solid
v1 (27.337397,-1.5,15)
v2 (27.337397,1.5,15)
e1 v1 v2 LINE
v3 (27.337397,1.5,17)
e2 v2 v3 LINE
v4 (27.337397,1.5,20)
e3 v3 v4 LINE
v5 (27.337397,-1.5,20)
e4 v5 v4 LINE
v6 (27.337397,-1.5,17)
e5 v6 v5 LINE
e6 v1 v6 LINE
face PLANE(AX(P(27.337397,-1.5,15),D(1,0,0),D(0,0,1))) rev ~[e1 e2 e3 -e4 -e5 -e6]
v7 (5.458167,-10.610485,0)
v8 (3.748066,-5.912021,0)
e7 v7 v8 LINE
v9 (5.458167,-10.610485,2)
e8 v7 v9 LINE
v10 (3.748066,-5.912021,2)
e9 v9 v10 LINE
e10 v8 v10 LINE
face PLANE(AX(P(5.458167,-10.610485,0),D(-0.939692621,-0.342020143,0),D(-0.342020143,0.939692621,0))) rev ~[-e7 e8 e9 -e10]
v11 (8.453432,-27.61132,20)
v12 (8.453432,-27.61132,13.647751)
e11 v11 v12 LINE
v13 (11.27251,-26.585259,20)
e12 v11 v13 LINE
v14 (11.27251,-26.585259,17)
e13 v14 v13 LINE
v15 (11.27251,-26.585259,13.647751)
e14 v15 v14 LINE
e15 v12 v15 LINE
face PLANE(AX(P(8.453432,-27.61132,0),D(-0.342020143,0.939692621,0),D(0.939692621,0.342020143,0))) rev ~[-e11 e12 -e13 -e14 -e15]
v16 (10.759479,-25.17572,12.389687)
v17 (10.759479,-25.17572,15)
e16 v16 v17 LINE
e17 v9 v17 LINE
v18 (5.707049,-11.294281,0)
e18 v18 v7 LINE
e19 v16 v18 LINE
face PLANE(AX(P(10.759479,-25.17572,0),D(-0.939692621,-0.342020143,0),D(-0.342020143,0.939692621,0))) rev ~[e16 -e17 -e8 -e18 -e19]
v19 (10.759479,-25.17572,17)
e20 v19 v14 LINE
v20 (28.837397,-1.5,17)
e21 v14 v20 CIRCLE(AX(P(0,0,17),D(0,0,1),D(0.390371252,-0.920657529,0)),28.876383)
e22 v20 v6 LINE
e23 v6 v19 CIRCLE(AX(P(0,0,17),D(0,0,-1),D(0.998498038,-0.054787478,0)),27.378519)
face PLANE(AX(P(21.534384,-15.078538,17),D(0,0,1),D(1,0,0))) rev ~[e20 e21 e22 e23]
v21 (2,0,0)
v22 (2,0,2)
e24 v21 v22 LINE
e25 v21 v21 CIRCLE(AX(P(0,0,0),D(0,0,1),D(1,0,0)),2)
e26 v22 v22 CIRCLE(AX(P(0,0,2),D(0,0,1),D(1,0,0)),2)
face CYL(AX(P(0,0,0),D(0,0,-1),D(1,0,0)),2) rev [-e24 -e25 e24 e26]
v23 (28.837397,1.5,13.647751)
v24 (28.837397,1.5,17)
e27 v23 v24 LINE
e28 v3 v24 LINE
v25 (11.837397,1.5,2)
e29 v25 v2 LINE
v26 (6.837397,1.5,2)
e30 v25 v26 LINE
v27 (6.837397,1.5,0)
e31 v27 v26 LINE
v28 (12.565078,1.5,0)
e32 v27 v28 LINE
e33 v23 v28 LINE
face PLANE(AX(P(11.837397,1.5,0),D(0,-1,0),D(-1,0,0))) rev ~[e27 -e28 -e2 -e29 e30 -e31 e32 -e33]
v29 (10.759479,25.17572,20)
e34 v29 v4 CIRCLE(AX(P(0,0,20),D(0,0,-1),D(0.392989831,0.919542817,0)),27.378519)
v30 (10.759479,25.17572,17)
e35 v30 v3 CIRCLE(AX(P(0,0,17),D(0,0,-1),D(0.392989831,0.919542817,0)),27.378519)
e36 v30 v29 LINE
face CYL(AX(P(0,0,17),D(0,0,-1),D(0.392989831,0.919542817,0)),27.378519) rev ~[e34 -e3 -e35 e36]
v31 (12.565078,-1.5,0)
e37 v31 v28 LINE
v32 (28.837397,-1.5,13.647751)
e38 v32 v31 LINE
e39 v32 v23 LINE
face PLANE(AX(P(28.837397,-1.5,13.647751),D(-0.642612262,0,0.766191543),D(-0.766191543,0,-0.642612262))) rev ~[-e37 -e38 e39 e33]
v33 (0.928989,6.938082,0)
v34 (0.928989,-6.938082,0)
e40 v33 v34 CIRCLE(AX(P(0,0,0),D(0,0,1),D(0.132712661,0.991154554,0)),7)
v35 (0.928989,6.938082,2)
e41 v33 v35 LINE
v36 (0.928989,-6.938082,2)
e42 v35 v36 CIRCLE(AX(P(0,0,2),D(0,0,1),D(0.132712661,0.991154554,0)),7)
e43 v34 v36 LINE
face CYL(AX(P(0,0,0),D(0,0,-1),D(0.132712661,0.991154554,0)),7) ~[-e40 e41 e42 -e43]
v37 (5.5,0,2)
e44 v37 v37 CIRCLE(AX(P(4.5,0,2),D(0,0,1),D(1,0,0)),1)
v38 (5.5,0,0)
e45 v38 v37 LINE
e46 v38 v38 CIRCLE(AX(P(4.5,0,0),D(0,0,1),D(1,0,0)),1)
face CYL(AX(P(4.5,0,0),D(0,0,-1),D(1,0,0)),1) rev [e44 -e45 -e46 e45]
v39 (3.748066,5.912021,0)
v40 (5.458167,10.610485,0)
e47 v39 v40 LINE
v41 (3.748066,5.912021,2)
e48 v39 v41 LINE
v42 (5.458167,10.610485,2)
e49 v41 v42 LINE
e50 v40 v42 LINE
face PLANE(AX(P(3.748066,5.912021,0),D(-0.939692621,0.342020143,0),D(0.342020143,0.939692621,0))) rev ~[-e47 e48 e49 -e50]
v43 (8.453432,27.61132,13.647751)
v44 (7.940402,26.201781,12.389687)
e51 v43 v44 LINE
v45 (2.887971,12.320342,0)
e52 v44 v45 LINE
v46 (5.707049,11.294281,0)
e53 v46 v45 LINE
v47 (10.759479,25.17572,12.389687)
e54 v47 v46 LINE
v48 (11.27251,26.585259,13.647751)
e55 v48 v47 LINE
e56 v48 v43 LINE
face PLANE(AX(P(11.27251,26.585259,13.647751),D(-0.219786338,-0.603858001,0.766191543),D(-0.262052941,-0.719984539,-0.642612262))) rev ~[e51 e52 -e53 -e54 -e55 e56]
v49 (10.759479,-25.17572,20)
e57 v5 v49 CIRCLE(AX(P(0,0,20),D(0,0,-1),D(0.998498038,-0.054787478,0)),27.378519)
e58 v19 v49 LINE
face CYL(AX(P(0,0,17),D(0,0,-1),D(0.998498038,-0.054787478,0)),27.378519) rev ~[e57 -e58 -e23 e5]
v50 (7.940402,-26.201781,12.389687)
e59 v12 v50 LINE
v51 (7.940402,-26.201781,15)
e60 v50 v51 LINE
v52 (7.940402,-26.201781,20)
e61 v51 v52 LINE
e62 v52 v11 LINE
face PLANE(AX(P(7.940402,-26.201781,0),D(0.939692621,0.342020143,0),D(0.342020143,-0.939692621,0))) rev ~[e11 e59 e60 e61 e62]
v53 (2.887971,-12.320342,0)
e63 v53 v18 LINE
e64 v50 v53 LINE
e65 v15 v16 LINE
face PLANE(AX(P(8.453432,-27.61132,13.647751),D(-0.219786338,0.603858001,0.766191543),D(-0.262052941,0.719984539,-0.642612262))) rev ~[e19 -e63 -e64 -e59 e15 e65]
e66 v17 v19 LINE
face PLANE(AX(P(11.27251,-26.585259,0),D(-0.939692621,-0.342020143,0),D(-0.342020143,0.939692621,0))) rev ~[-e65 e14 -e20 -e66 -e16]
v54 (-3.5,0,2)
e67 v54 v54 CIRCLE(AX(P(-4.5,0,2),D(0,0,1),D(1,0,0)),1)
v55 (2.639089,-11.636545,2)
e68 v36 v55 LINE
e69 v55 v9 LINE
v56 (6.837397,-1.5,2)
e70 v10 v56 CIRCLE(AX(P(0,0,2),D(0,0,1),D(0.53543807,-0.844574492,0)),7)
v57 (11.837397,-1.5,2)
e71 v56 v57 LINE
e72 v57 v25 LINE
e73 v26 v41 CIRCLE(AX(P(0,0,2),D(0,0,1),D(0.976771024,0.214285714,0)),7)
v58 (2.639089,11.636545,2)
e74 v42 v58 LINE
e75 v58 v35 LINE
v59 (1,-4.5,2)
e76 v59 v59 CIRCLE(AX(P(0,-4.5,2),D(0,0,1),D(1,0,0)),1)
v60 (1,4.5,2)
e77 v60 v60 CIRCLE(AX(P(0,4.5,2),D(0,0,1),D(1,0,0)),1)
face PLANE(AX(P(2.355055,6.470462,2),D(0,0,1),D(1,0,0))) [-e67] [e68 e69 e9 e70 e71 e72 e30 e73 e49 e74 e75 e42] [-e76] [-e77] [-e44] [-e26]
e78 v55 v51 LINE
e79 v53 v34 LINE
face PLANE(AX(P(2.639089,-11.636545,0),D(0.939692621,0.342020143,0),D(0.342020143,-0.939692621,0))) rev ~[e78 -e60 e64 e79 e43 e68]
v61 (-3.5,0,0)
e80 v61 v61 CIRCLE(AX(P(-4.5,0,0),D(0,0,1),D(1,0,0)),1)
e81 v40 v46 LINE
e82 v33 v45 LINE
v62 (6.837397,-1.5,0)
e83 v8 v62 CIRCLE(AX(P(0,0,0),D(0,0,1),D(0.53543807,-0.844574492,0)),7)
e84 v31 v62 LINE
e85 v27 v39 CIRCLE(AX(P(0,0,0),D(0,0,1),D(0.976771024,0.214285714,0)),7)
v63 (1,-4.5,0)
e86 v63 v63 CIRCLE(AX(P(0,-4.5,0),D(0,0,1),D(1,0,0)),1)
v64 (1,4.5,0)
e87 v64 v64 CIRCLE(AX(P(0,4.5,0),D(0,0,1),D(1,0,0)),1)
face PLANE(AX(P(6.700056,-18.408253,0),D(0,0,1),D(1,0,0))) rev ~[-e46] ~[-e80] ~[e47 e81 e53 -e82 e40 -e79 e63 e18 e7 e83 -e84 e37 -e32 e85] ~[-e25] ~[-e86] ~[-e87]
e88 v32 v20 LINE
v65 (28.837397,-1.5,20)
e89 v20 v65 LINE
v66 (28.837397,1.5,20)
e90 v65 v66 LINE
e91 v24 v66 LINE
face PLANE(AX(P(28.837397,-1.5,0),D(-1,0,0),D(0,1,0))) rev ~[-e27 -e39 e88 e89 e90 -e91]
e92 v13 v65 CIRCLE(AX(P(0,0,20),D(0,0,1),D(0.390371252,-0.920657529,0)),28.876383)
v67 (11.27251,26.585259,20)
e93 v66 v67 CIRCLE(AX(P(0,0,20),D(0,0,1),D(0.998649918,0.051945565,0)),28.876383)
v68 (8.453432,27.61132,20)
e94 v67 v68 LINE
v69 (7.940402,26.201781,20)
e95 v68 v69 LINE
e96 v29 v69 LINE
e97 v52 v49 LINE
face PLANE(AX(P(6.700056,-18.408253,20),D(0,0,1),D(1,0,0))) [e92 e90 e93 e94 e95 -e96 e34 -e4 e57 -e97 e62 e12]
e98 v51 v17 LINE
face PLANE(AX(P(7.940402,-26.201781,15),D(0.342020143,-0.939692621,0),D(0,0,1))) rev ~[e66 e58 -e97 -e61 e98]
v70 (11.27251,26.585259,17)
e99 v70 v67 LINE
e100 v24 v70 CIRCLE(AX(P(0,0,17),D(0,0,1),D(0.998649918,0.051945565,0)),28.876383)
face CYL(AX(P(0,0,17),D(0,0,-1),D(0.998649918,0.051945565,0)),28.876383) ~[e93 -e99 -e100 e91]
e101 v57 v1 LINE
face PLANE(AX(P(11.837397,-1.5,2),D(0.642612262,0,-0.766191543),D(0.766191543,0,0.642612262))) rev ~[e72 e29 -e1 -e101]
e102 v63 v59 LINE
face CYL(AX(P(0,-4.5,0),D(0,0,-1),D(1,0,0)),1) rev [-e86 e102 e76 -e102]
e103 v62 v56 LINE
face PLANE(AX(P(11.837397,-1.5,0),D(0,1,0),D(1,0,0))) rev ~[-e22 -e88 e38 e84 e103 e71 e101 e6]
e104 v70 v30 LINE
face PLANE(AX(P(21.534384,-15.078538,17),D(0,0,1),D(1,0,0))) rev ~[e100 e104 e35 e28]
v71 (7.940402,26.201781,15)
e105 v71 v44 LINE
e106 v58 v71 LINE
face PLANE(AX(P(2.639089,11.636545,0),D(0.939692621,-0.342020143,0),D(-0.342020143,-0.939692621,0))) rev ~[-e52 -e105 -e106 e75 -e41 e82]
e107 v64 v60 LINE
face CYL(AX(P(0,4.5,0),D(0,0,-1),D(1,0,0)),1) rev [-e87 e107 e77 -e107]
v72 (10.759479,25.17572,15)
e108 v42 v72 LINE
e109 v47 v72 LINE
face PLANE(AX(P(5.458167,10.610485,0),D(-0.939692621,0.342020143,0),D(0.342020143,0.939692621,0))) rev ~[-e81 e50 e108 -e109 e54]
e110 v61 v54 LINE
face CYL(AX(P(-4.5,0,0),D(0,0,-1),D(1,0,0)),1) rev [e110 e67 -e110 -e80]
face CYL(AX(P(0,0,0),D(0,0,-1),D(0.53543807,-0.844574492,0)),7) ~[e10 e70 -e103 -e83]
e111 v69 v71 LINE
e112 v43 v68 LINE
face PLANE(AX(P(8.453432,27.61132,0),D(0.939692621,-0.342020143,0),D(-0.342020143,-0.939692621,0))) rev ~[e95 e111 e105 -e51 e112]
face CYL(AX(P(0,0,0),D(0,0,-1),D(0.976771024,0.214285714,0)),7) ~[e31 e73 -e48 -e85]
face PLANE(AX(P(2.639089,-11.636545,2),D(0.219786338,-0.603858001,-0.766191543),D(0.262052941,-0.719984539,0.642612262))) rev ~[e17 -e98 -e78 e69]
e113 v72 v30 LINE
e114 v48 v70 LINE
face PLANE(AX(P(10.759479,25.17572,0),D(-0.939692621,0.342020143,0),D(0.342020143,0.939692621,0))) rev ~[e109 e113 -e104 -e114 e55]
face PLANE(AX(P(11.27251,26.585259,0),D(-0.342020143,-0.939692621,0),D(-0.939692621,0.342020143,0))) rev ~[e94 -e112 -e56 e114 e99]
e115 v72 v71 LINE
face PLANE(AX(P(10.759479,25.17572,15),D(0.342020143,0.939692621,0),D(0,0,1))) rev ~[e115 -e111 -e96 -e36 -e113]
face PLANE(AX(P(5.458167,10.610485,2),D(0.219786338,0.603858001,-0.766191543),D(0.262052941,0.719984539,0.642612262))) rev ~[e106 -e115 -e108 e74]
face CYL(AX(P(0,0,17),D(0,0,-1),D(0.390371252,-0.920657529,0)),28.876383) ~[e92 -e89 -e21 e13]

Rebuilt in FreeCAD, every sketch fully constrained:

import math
import FreeCAD as App
import Part
import Sketcher
from FreeCAD import Vector
Q = App.Units.Quantity

doc = App.newDocument("Part")
params = doc.addObject("Spreadsheet::Sheet", "Params")
for row, (alias, value) in enumerate([
    ("sketch1_diameter", "2 mm"),
    ("sketch1_diameter2", "4 mm"),
    ("sketch1_radius", "7 mm"),
    ("sketch1_width", "5 mm"),
    ("sketch1_height", "3 mm"),
    ("pad1_length", "2 mm"),
    ("sketch2_height", "3 mm"),
    ("sketch2_length", "3 mm"),
    ("sketch2_length2", "1.5 mm"),
    ("pad2_length", "3 mm"),
    ("sketch3_width", "17 mm"),
    ("sketch3_height", "3 mm"),
    ("sketch3_length", "3 mm"),
    ("sketch3_length2", "15.5 mm"),
    ("sketch3_length3", "1.5 mm"),
    ("pad3_length", "20 mm"),
    ("sketch4_height", "5 mm"),
    ("sketch4_height2", "18 mm"),
    ("sketch4_width", "15.5 mm"),
    ("pocket1_length", "3 mm"),
    ("sketch5_height", "18 mm"),
    ("sketch5_height2", "5 mm"),
    ("sketch5_width", "15.5 mm"),
    ("pocket2_length", "3 mm"),
    ("sketch6_height", "18 mm"),
    ("sketch6_height2", "5 mm"),
    ("sketch6_width", "15.5 mm"),
    ("pocket3_length", "3 mm"),
], start=1):
    params.set(f"A{row}", alias)
    params.set(f"B{row}", "=" + value)
    params.setAlias(f"B{row}", alias)

body = doc.addObject("PartDesign::Body", "Body")

sketch1 = body.newObject("Sketcher::SketchObject", "Sketch")
sketch1.AttachmentSupport = (doc.getObject("XY_Plane"), [""])
sketch1.MapMode = "FlatFace"
sketch1.addGeometry(Part.ArcOfCircle(Part.Circle(Vector(0, 0, 0), Vector(0, 0, 1), 7), math.radians(82.373625), math.radians(277.626375)), False)
sketch1.addGeometry(Part.LineSegment(Vector(0.928989, -6.938082, 0), Vector(2.639089, -11.636545, 0)), False)
sketch1.addGeometry(Part.LineSegment(Vector(2.639089, -11.636545, 0), Vector(5.458167, -10.610485, 0)), False)
sketch1.addGeometry(Part.LineSegment(Vector(5.458167, -10.610485, 0), Vector(3.748066, -5.912021, 0)), False)
sketch1.addGeometry(Part.ArcOfCircle(Part.Circle(Vector(0, 0, 0), Vector(0, 0, 1), 7), math.radians(-57.626375), math.radians(-12.373625)), False)
sketch1.addGeometry(Part.LineSegment(Vector(6.837397, -1.5, 0), Vector(11.837397, -1.5, 0)), False)
sketch1.addGeometry(Part.LineSegment(Vector(11.837397, -1.5, 0), Vector(11.837397, 1.5, 0)), False)
sketch1.addGeometry(Part.LineSegment(Vector(11.837397, 1.5, 0), Vector(6.837397, 1.5, 0)), False)
sketch1.addGeometry(Part.ArcOfCircle(Part.Circle(Vector(0, 0, 0), Vector(0, 0, 1), 7), math.radians(12.373625), math.radians(57.626375)), False)
sketch1.addGeometry(Part.LineSegment(Vector(3.748066, 5.912021, 0), Vector(5.458167, 10.610485, 0)), False)
sketch1.addGeometry(Part.LineSegment(Vector(5.458167, 10.610485, 0), Vector(2.639089, 11.636545, 0)), False)
sketch1.addGeometry(Part.LineSegment(Vector(2.639089, 11.636545, 0), Vector(0.928989, 6.938082, 0)), False)
sketch1.addGeometry(Part.Circle(Vector(-4.5, 0, 0), Vector(0, 0, 1), 1), False)
sketch1.addGeometry(Part.Circle(Vector(0, -4.5, 0), Vector(0, 0, 1), 1), False)
sketch1.addGeometry(Part.Circle(Vector(4.5, 0, 0), Vector(0, 0, 1), 1), False)
sketch1.addGeometry(Part.Circle(Vector(0, 0, 0), Vector(0, 0, 1), 2), False)
sketch1.addGeometry(Part.Circle(Vector(0, 4.5, 0), Vector(0, 0, 1), 1), False)
sketch1.addConstraint(Sketcher.Constraint("Coincident", 0, 2, 1, 1))
sketch1.addConstraint(Sketcher.Constraint("Coincident", 1, 2, 2, 1))
sketch1.addConstraint(Sketcher.Constraint("Coincident", 2, 2, 3, 1))
sketch1.addConstraint(Sketcher.Constraint("Coincident", 3, 2, 4, 1))
sketch1.addConstraint(Sketcher.Constraint("Coincident", 4, 2, 5, 1))
sketch1.addConstraint(Sketcher.Constraint("Coincident", 5, 2, 6, 1))
sketch1.addConstraint(Sketcher.Constraint("Coincident", 6, 2, 7, 1))
sketch1.addConstraint(Sketcher.Constraint("Coincident", 7, 2, 8, 1))
sketch1.addConstraint(Sketcher.Constraint("Coincident", 8, 2, 9, 1))
sketch1.addConstraint(Sketcher.Constraint("Coincident", 9, 2, 10, 1))
sketch1.addConstraint(Sketcher.Constraint("Coincident", 10, 2, 11, 1))
sketch1.addConstraint(Sketcher.Constraint("Coincident", 11, 2, 0, 1))
sketch1.addConstraint(Sketcher.Constraint("Horizontal", 5))
sketch1.addConstraint(Sketcher.Constraint("Vertical", 6))
sketch1.addConstraint(Sketcher.Constraint("Horizontal", 7))
sketch1.addConstraint(Sketcher.Constraint("Coincident", 0, 3, -1, 1))
sketch1.addConstraint(Sketcher.Constraint("Coincident", 4, 3, -1, 1))
sketch1.addConstraint(Sketcher.Constraint("Coincident", 8, 3, -1, 1))
sketch1.addConstraint(Sketcher.Constraint("Coincident", 15, 3, -1, 1))
sketch1.addConstraint(Sketcher.Constraint("Equal", 0, 4))
sketch1.addConstraint(Sketcher.Constraint("Equal", 4, 8))
sketch1.addConstraint(Sketcher.Constraint("Equal", 12, 13))
sketch1.addConstraint(Sketcher.Constraint("Equal", 13, 14))
sketch1.addConstraint(Sketcher.Constraint("Equal", 14, 16))
sketch1.addConstraint(Sketcher.Constraint("Symmetric", 12, 3, 14, 3, -1, 1))
sketch1.addConstraint(Sketcher.Constraint("Symmetric", 13, 3, 16, 3, -1, 1))
sketch1.addConstraint(Sketcher.Constraint("Symmetric", 2, 2, 9, 2, -1))
sketch1.addConstraint(Sketcher.Constraint("Symmetric", 1, 2, 10, 2, -1))
sketch1.addConstraint(Sketcher.Constraint("PointOnObject", 12, 3, -1))
sketch1.addConstraint(Sketcher.Constraint("PointOnObject", 13, 3, -2))
sketch1.addConstraint(Sketcher.Constraint("Perpendicular", 1, 2))
sketch1.addConstraint(Sketcher.Constraint("Perpendicular", 2, 3))
sketch1.addConstraint(Sketcher.Constraint("Perpendicular", 9, 10))
sketch1.addConstraint(Sketcher.Constraint("Perpendicular", 10, 11))
sketch1.addConstraint(Sketcher.Constraint("Vertical", 4, 2, 7, 2))
sketch1.addConstraint(Sketcher.Constraint("Equal", 1, 3))
sketch1.addConstraint(Sketcher.Constraint("Diameter", 12, 2.0))
sketch1.addConstraint(Sketcher.Constraint("Diameter", 15, 4.0))
sketch1.addConstraint(Sketcher.Constraint("Radius", 0, 7.0))
sketch1.addConstraint(Sketcher.Constraint("DistanceX", 5, 1, 5, 2, 5.0))
sketch1.addConstraint(Sketcher.Constraint("DistanceY", 6, 1, 6, 2, 3.0))
sketch1.addConstraint(Sketcher.Constraint("Angle", 1, Q("-70 deg")))
sketch1.addConstraint(Sketcher.Constraint("Distance", 1, 5.0))
sketch1.addConstraint(Sketcher.Constraint("Distance", 2, 3.0))
sketch1.addConstraint(Sketcher.Constraint("DistanceX", 12, 3, 14, 3, 9.0))
sketch1.addConstraint(Sketcher.Constraint("DistanceY", 13, 3, -1, 1, 4.5))
sketch1.setExpression("Constraints[36]", "Params.sketch1_diameter")
sketch1.setExpression("Constraints[37]", "Params.sketch1_diameter2")
sketch1.setExpression("Constraints[38]", "Params.sketch1_radius")
sketch1.setExpression("Constraints[39]", "Params.sketch1_width")
sketch1.setExpression("Constraints[40]", "Params.sketch1_height")
pad1 = body.newObject("PartDesign::Pad", "Pad")
pad1.Profile = sketch1
pad1.setExpression("Length", "Params.pad1_length")
body2 = doc.addObject("PartDesign::Body", "Body001")

sketch2 = body2.newObject("Sketcher::SketchObject", "Sketch001")
sketch2.AttachmentSupport = (doc.getObject("XY_Plane001"), [""])
sketch2.MapMode = "FlatFace"
sketch2.AttachmentOffset = App.Placement(Vector(0, 0, 17), App.Rotation())
sketch2.addGeometry(Part.ArcOfCircle(Part.Circle(Vector(0, 0, 0), Vector(0, 0, 1), 27.378519), math.radians(-66.859336), math.radians(-3.140664)), False)
sketch2.addGeometry(Part.ArcOfCircle(Part.Circle(Vector(0, 0, 0), Vector(0, 0, 1), 27.378519), math.radians(-73.140664), math.radians(-66.859336)), False)
sketch2.addGeometry(Part.LineSegment(Vector(7.940402, -26.201781, 0), Vector(8.453432, -27.61132, 0)), False)
sketch2.addGeometry(Part.LineSegment(Vector(8.453432, -27.61132, 0), Vector(11.27251, -26.585259, 0)), False)
sketch2.addGeometry(Part.ArcOfCircle(Part.Circle(Vector(0, 0, 0), Vector(0, 0, 1), 28.876383), math.radians(-67.022398), math.radians(-2.977602)), False)
sketch2.addGeometry(Part.LineSegment(Vector(28.837397, -1.5, 0), Vector(28.837397, 1.5, 0)), False)
sketch2.addGeometry(Part.ArcOfCircle(Part.Circle(Vector(0, 0, 0), Vector(0, 0, 1), 28.876383), math.radians(2.977602), math.radians(67.022398)), False)
sketch2.addGeometry(Part.LineSegment(Vector(11.27251, 26.585259, 0), Vector(8.453432, 27.61132, 0)), False)
sketch2.addGeometry(Part.LineSegment(Vector(8.453432, 27.61132, 0), Vector(7.940402, 26.201781, 0)), False)
sketch2.addGeometry(Part.ArcOfCircle(Part.Circle(Vector(0, 0, 0), Vector(0, 0, 1), 27.378519), math.radians(66.859336), math.radians(73.140664)), False)
sketch2.addGeometry(Part.ArcOfCircle(Part.Circle(Vector(0, 0, 0), Vector(0, 0, 1), 27.378519), math.radians(3.140664), math.radians(66.859336)), False)
sketch2.addGeometry(Part.ArcOfCircle(Part.Circle(Vector(0, 0, 0), Vector(0, 0, 1), 27.378519), math.radians(-3.140664), math.radians(3.140664)), False)
sketch2.addConstraint(Sketcher.Constraint("Tangent", 0, 1, 1, 2))
sketch2.addConstraint(Sketcher.Constraint("Coincident", 1, 1, 2, 1))
sketch2.addConstraint(Sketcher.Constraint("Coincident", 2, 2, 3, 1))
sketch2.addConstraint(Sketcher.Constraint("Coincident", 3, 2, 4, 1))
sketch2.addConstraint(Sketcher.Constraint("Coincident", 4, 2, 5, 1))
sketch2.addConstraint(Sketcher.Constraint("Coincident", 5, 2, 6, 1))
sketch2.addConstraint(Sketcher.Constraint("Coincident", 6, 2, 7, 1))
sketch2.addConstraint(Sketcher.Constraint("Coincident", 7, 2, 8, 1))
sketch2.addConstraint(Sketcher.Constraint("Coincident", 8, 2, 9, 2))
sketch2.addConstraint(Sketcher.Constraint("Tangent", 9, 1, 10, 2))
sketch2.addConstraint(Sketcher.Constraint("Tangent", 10, 1, 11, 2))
sketch2.addConstraint(Sketcher.Constraint("Tangent", 11, 1, 0, 2))
sketch2.addConstraint(Sketcher.Constraint("Vertical", 5))
sketch2.addConstraint(Sketcher.Constraint("Coincident", 0, 3, -1, 1))
sketch2.addConstraint(Sketcher.Constraint("Coincident", 4, 3, -1, 1))
sketch2.addConstraint(Sketcher.Constraint("Coincident", 6, 3, -1, 1))
sketch2.addConstraint(Sketcher.Constraint("Coincident", 9, 3, -1, 1))
sketch2.addConstraint(Sketcher.Constraint("Equal", 0, 1))
sketch2.addConstraint(Sketcher.Constraint("Equal", 4, 6))
sketch2.addConstraint(Sketcher.Constraint("Equal", 1, 9))
sketch2.addConstraint(Sketcher.Constraint("Symmetric", 2, 2, 7, 2, -1))
sketch2.addConstraint(Sketcher.Constraint("Perpendicular", 2, 3))
sketch2.addConstraint(Sketcher.Constraint("Perpendicular", 7, 8))
sketch2.addConstraint(Sketcher.Constraint("Horizontal", 5, 2, 10, 1))
sketch2.addConstraint(Sketcher.Constraint("Horizontal", 4, 2, 11, 1))
sketch2.addConstraint(Sketcher.Constraint("Vertical", 3, 2, 6, 2))
sketch2.addConstraint(Sketcher.Constraint("Vertical", 0, 1, 9, 1))
sketch2.addConstraint(Sketcher.Constraint("DistanceY", 5, 1, 5, 2, 3.0))
sketch2.addConstraint(Sketcher.Constraint("Angle", 2, Q("-70 deg")))
sketch2.addConstraint(Sketcher.Constraint("Distance", 3, 3.0))
sketch2.addConstraint(Sketcher.Constraint("Distance", 2, 1.5))
sketch2.addConstraint(Sketcher.Constraint("DistanceX", 10, 1, 5, 2, 1.5))
sketch2.addConstraint(Sketcher.Constraint("Radius", 0, 27.378519))
sketch2.addConstraint(Sketcher.Constraint("DistanceY", 2, 2, 0, 1, 2.435599))
sketch2.setExpression("Constraints[27]", "Params.sketch2_height")
sketch2.setExpression("Constraints[29]", "Params.sketch2_length")
sketch2.setExpression("Constraints[30]", "Params.sketch2_length2")
pad2 = body2.newObject("PartDesign::Pad", "Pad001")
pad2.Profile = sketch2
pad2.setExpression("Length", "Params.pad2_length")
body.AllowCompound = True
doc.recompute()

boolean = body.newObject("PartDesign::Boolean", "Boolean")
boolean.Type = "Fuse"
boolean.addObjects([body2])

sketch3 = body.newObject("Sketcher::SketchObject", "Sketch002")
sketch3.AttachmentSupport = (doc.getObject("XY_Plane"), [""])
sketch3.MapMode = "FlatFace"
sketch3.addGeometry(Part.LineSegment(Vector(10.759479, -25.17572, 0), Vector(5.458167, -10.610485, 0)), False)
sketch3.addGeometry(Part.LineSegment(Vector(5.458167, -10.610485, 0), Vector(2.639089, -11.636545, 0)), False)
sketch3.addGeometry(Part.LineSegment(Vector(2.639089, -11.636545, 0), Vector(7.940402, -26.201781, 0)), False)
sketch3.addGeometry(Part.LineSegment(Vector(7.940402, -26.201781, 0), Vector(8.453432, -27.61132, 0)), False)
sketch3.addGeometry(Part.LineSegment(Vector(8.453432, -27.61132, 0), Vector(11.27251, -26.585259, 0)), False)
sketch3.addGeometry(Part.LineSegment(Vector(11.27251, -26.585259, 0), Vector(10.759479, -25.17572, 0)), False)
sketch3.addGeometry(Part.LineSegment(Vector(10.759479, 25.17572, 0), Vector(11.27251, 26.585259, 0)), False)
sketch3.addGeometry(Part.LineSegment(Vector(11.27251, 26.585259, 0), Vector(8.453432, 27.61132, 0)), False)
sketch3.addGeometry(Part.LineSegment(Vector(8.453432, 27.61132, 0), Vector(7.940402, 26.201781, 0)), False)
sketch3.addGeometry(Part.LineSegment(Vector(7.940402, 26.201781, 0), Vector(2.639089, 11.636545, 0)), False)
sketch3.addGeometry(Part.LineSegment(Vector(2.639089, 11.636545, 0), Vector(5.458167, 10.610485, 0)), False)
sketch3.addGeometry(Part.LineSegment(Vector(5.458167, 10.610485, 0), Vector(10.759479, 25.17572, 0)), False)
sketch3.addGeometry(Part.LineSegment(Vector(28.837397, 1.5, 0), Vector(11.837397, 1.5, 0)), False)
sketch3.addGeometry(Part.LineSegment(Vector(11.837397, 1.5, 0), Vector(11.837397, -1.5, 0)), False)
sketch3.addGeometry(Part.LineSegment(Vector(11.837397, -1.5, 0), Vector(28.837397, -1.5, 0)), False)
sketch3.addGeometry(Part.LineSegment(Vector(28.837397, -1.5, 0), Vector(28.837397, 1.5, 0)), False)
sketch3.addConstraint(Sketcher.Constraint("Coincident", 0, 2, 1, 1))
sketch3.addConstraint(Sketcher.Constraint("Coincident", 1, 2, 2, 1))
sketch3.addConstraint(Sketcher.Constraint("Coincident", 2, 2, 3, 1))
sketch3.addConstraint(Sketcher.Constraint("Coincident", 3, 2, 4, 1))
sketch3.addConstraint(Sketcher.Constraint("Coincident", 4, 2, 5, 1))
sketch3.addConstraint(Sketcher.Constraint("Coincident", 5, 2, 0, 1))
sketch3.addConstraint(Sketcher.Constraint("Coincident", 6, 2, 7, 1))
sketch3.addConstraint(Sketcher.Constraint("Coincident", 7, 2, 8, 1))
sketch3.addConstraint(Sketcher.Constraint("Coincident", 8, 2, 9, 1))
sketch3.addConstraint(Sketcher.Constraint("Coincident", 9, 2, 10, 1))
sketch3.addConstraint(Sketcher.Constraint("Coincident", 10, 2, 11, 1))
sketch3.addConstraint(Sketcher.Constraint("Coincident", 11, 2, 6, 1))
sketch3.addConstraint(Sketcher.Constraint("Coincident", 12, 2, 13, 1))
sketch3.addConstraint(Sketcher.Constraint("Coincident", 13, 2, 14, 1))
sketch3.addConstraint(Sketcher.Constraint("Coincident", 14, 2, 15, 1))
sketch3.addConstraint(Sketcher.Constraint("Coincident", 15, 2, 12, 1))
sketch3.addConstraint(Sketcher.Constraint("Horizontal", 12))
sketch3.addConstraint(Sketcher.Constraint("Vertical", 13))
sketch3.addConstraint(Sketcher.Constraint("Horizontal", 14))
sketch3.addConstraint(Sketcher.Constraint("Vertical", 15))
sketch3.addConstraint(Sketcher.Constraint("Symmetric", 4, 2, 6, 2, -1))
sketch3.addConstraint(Sketcher.Constraint("Symmetric", 3, 2, 7, 2, -1))
sketch3.addConstraint(Sketcher.Constraint("Symmetric", 2, 2, 8, 2, -1))
sketch3.addConstraint(Sketcher.Constraint("Symmetric", 1, 2, 9, 2, -1))
sketch3.addConstraint(Sketcher.Constraint("Symmetric", 0, 2, 10, 2, -1))
sketch3.addConstraint(Sketcher.Constraint("Symmetric", 5, 2, 11, 2, -1))
sketch3.addConstraint(Sketcher.Constraint("Perpendicular", 0, 1))
sketch3.addConstraint(Sketcher.Constraint("Perpendicular", 1, 2))
sketch3.addConstraint(Sketcher.Constraint("Parallel", 2, 3))
sketch3.addConstraint(Sketcher.Constraint("Perpendicular", 3, 4))
sketch3.addConstraint(Sketcher.Constraint("Perpendicular", 4, 5))
sketch3.addConstraint(Sketcher.Constraint("Equal", 0, 2))
sketch3.addConstraint(Sketcher.Constraint("DistanceX", 12, 2, 12, 1, 17.0))
sketch3.addConstraint(Sketcher.Constraint("DistanceY", 13, 2, 13, 1, 3.0))
sketch3.addConstraint(Sketcher.Constraint("Angle", 0, Q("110 deg")))
sketch3.addConstraint(Sketcher.Constraint("Distance", 1, 3.0))
sketch3.addConstraint(Sketcher.Constraint("Distance", 0, 15.5))
sketch3.addConstraint(Sketcher.Constraint("Distance", 3, 1.5))
sketch3.addConstraint(Sketcher.Constraint("DistanceY", -1, 1, 12, 2, 1.5))
sketch3.addConstraint(Sketcher.Constraint("DistanceX", -1, 1, 2, 2, 7.940402))
sketch3.addConstraint(Sketcher.Constraint("DistanceY", 2, 2, 7, 2, 53.8131))
sketch3.addConstraint(Sketcher.Constraint("DistanceX", 10, 2, 12, 2, 6.37923))
sketch3.setExpression("Constraints[32]", "Params.sketch3_width")
sketch3.setExpression("Constraints[33]", "Params.sketch3_height")
sketch3.setExpression("Constraints[35]", "Params.sketch3_length")
sketch3.setExpression("Constraints[36]", "Params.sketch3_length2")
sketch3.setExpression("Constraints[37]", "Params.sketch3_length3")
pad3 = body.newObject("PartDesign::Pad", "Pad002")
pad3.Profile = sketch3
pad3.setExpression("Length", "Params.pad3_length")

sketch4 = body.newObject("Sketcher::SketchObject", "Sketch003")
sketch4.Placement = App.Placement(Vector(-1.409539, -0.51303, 0), App.Rotation(Vector(0.342020143, -0.939692621, 0), Vector(0, 0, 1), Vector(-0.939692621, -0.342020143, 0), "ZXY"))
sketch4.addGeometry(Part.LineSegment(Vector(27.337397, 15, 0), Vector(27.337397, 20, 0)), False)
sketch4.addGeometry(Part.LineSegment(Vector(27.337397, 20, 0), Vector(11.837397, 20, 0)), False)
sketch4.addGeometry(Part.LineSegment(Vector(11.837397, 20, 0), Vector(11.837397, 2, 0)), False)
sketch4.addGeometry(Part.LineSegment(Vector(11.837397, 2, 0), Vector(27.337397, 15, 0)), False)
sketch4.addGeometry(Part.LineSegment(Vector(28.837397, 0, 0), Vector(28.837397, 13.647751, 0)), False)
sketch4.addGeometry(Part.LineSegment(Vector(28.837397, 13.647751, 0), Vector(12.565078, 0, 0)), False)
sketch4.addGeometry(Part.LineSegment(Vector(12.565078, 0, 0), Vector(28.837397, 0, 0)), False)
sketch4.addConstraint(Sketcher.Constraint("Coincident", 0, 2, 1, 1))
sketch4.addConstraint(Sketcher.Constraint("Coincident", 1, 2, 2, 1))
sketch4.addConstraint(Sketcher.Constraint("Coincident", 2, 2, 3, 1))
sketch4.addConstraint(Sketcher.Constraint("Coincident", 3, 2, 0, 1))
sketch4.addConstraint(Sketcher.Constraint("Coincident", 4, 2, 5, 1))
sketch4.addConstraint(Sketcher.Constraint("Coincident", 5, 2, 6, 1))
sketch4.addConstraint(Sketcher.Constraint("Coincident", 6, 2, 4, 1))
sketch4.addConstraint(Sketcher.Constraint("Vertical", 0))
sketch4.addConstraint(Sketcher.Constraint("Horizontal", 1))
sketch4.addConstraint(Sketcher.Constraint("Vertical", 2))
sketch4.addConstraint(Sketcher.Constraint("Vertical", 4))
sketch4.addConstraint(Sketcher.Constraint("Horizontal", 6))
sketch4.addConstraint(Sketcher.Constraint("PointOnObject", 5, 2, -1))
sketch4.addConstraint(Sketcher.Constraint("Parallel", 3, 5))
sketch4.addConstraint(Sketcher.Constraint("DistanceY", 0, 1, 0, 2, 5.0))
sketch4.addConstraint(Sketcher.Constraint("DistanceY", 2, 2, 2, 1, 18.0))
sketch4.addConstraint(Sketcher.Constraint("DistanceX", 1, 2, 1, 1, 15.5))
sketch4.addConstraint(Sketcher.Constraint("DistanceY", -1, 1, 0, 2, 20.0))
sketch4.addConstraint(Sketcher.Constraint("DistanceX", 1, 2, 4, 2, 17.0))
sketch4.addConstraint(Sketcher.Constraint("DistanceX", 6, 1, 6, 2, 16.272319))
sketch4.addConstraint(Sketcher.Constraint("DistanceX", -1, 1, 5, 2, 12.565078))
sketch4.setExpression("Constraints[14]", "Params.sketch4_height")
sketch4.setExpression("Constraints[15]", "Params.sketch4_height2")
sketch4.setExpression("Constraints[16]", "Params.sketch4_width")
pocket1 = body.newObject("PartDesign::Pocket", "Pocket")
pocket1.Profile = sketch4
pocket1.setExpression("Length", "Params.pocket1_length")

sketch5 = body.newObject("Sketcher::SketchObject", "Sketch004")
sketch5.AttachmentSupport = (doc.getObject("XZ_Plane"), [""])
sketch5.MapMode = "FlatFace"
sketch5.AttachmentOffset = App.Placement(Vector(0, 0, 1.5), App.Rotation())
sketch5.addGeometry(Part.LineSegment(Vector(28.837397, 0, 0), Vector(28.837397, 13.647751, 0)), False)
sketch5.addGeometry(Part.LineSegment(Vector(28.837397, 13.647751, 0), Vector(12.565078, 0, 0)), False)
sketch5.addGeometry(Part.LineSegment(Vector(12.565078, 0, 0), Vector(28.837397, 0, 0)), False)
sketch5.addGeometry(Part.LineSegment(Vector(27.337397, 20, 0), Vector(11.837397, 20, 0)), False)
sketch5.addGeometry(Part.LineSegment(Vector(11.837397, 20, 0), Vector(11.837397, 2, 0)), False)
sketch5.addGeometry(Part.LineSegment(Vector(11.837397, 2, 0), Vector(27.337397, 15, 0)), False)
sketch5.addGeometry(Part.LineSegment(Vector(27.337397, 15, 0), Vector(27.337397, 20, 0)), False)
sketch5.addConstraint(Sketcher.Constraint("Coincident", 0, 2, 1, 1))
sketch5.addConstraint(Sketcher.Constraint("Coincident", 1, 2, 2, 1))
sketch5.addConstraint(Sketcher.Constraint("Coincident", 2, 2, 0, 1))
sketch5.addConstraint(Sketcher.Constraint("Coincident", 3, 2, 4, 1))
sketch5.addConstraint(Sketcher.Constraint("Coincident", 4, 2, 5, 1))
sketch5.addConstraint(Sketcher.Constraint("Coincident", 5, 2, 6, 1))
sketch5.addConstraint(Sketcher.Constraint("Coincident", 6, 2, 3, 1))
sketch5.addConstraint(Sketcher.Constraint("Vertical", 0))
sketch5.addConstraint(Sketcher.Constraint("Horizontal", 2))
sketch5.addConstraint(Sketcher.Constraint("Horizontal", 3))
sketch5.addConstraint(Sketcher.Constraint("Vertical", 4))
sketch5.addConstraint(Sketcher.Constraint("Vertical", 6))
sketch5.addConstraint(Sketcher.Constraint("PointOnObject", 1, 2, -1))
sketch5.addConstraint(Sketcher.Constraint("Parallel", 1, 5))
sketch5.addConstraint(Sketcher.Constraint("DistanceY", 4, 2, 4, 1, 18.0))
sketch5.addConstraint(Sketcher.Constraint("DistanceY", 6, 1, 6, 2, 5.0))
sketch5.addConstraint(Sketcher.Constraint("DistanceX", 3, 2, 3, 1, 15.5))
sketch5.addConstraint(Sketcher.Constraint("DistanceY", -1, 1, 3, 2, 20.0))
sketch5.addConstraint(Sketcher.Constraint("DistanceX", 3, 2, 0, 2, 17.0))
sketch5.addConstraint(Sketcher.Constraint("DistanceX", 2, 1, 2, 2, 16.272319))
sketch5.addConstraint(Sketcher.Constraint("DistanceX", -1, 1, 1, 2, 12.565078))
sketch5.setExpression("Constraints[14]", "Params.sketch5_height")
sketch5.setExpression("Constraints[15]", "Params.sketch5_height2")
sketch5.setExpression("Constraints[16]", "Params.sketch5_width")
pocket2 = body.newObject("PartDesign::Pocket", "Pocket001")
pocket2.Profile = sketch5
pocket2.setExpression("Length", "Params.pocket2_length")

sketch6 = body.newObject("Sketcher::SketchObject", "Sketch005")
sketch6.Placement = App.Placement(Vector(1.409539, -0.51303, 0), App.Rotation(Vector(0.342020143, 0.939692621, 0), Vector(0, 0, 1), Vector(0.939692621, -0.342020143, 0), "ZXY"))
sketch6.addGeometry(Part.LineSegment(Vector(27.337397, 20, 0), Vector(11.837397, 20, 0)), False)
sketch6.addGeometry(Part.LineSegment(Vector(11.837397, 20, 0), Vector(11.837397, 2, 0)), False)
sketch6.addGeometry(Part.LineSegment(Vector(11.837397, 2, 0), Vector(27.337397, 15, 0)), False)
sketch6.addGeometry(Part.LineSegment(Vector(27.337397, 15, 0), Vector(27.337397, 20, 0)), False)
sketch6.addGeometry(Part.LineSegment(Vector(28.837397, 0, 0), Vector(28.837397, 13.647751, 0)), False)
sketch6.addGeometry(Part.LineSegment(Vector(28.837397, 13.647751, 0), Vector(12.565078, 0, 0)), False)
sketch6.addGeometry(Part.LineSegment(Vector(12.565078, 0, 0), Vector(28.837397, 0, 0)), False)
sketch6.addConstraint(Sketcher.Constraint("Coincident", 0, 2, 1, 1))
sketch6.addConstraint(Sketcher.Constraint("Coincident", 1, 2, 2, 1))
sketch6.addConstraint(Sketcher.Constraint("Coincident", 2, 2, 3, 1))
sketch6.addConstraint(Sketcher.Constraint("Coincident", 3, 2, 0, 1))
sketch6.addConstraint(Sketcher.Constraint("Coincident", 4, 2, 5, 1))
sketch6.addConstraint(Sketcher.Constraint("Coincident", 5, 2, 6, 1))
sketch6.addConstraint(Sketcher.Constraint("Coincident", 6, 2, 4, 1))
sketch6.addConstraint(Sketcher.Constraint("Horizontal", 0))
sketch6.addConstraint(Sketcher.Constraint("Vertical", 1))
sketch6.addConstraint(Sketcher.Constraint("Vertical", 3))
sketch6.addConstraint(Sketcher.Constraint("Vertical", 4))
sketch6.addConstraint(Sketcher.Constraint("Horizontal", 6))
sketch6.addConstraint(Sketcher.Constraint("PointOnObject", 5, 2, -1))
sketch6.addConstraint(Sketcher.Constraint("Parallel", 2, 5))
sketch6.addConstraint(Sketcher.Constraint("DistanceY", 1, 2, 1, 1, 18.0))
sketch6.addConstraint(Sketcher.Constraint("DistanceY", 3, 1, 3, 2, 5.0))
sketch6.addConstraint(Sketcher.Constraint("DistanceX", 0, 2, 0, 1, 15.5))
sketch6.addConstraint(Sketcher.Constraint("DistanceY", -1, 1, 0, 2, 20.0))
sketch6.addConstraint(Sketcher.Constraint("DistanceX", 0, 2, 4, 2, 17.0))
sketch6.addConstraint(Sketcher.Constraint("DistanceX", 6, 1, 6, 2, 16.272319))
sketch6.addConstraint(Sketcher.Constraint("DistanceX", -1, 1, 5, 2, 12.565078))
sketch6.setExpression("Constraints[14]", "Params.sketch6_height")
sketch6.setExpression("Constraints[15]", "Params.sketch6_height2")
sketch6.setExpression("Constraints[16]", "Params.sketch6_width")
pocket3 = body.newObject("PartDesign::Pocket", "Pocket002")
pocket3.Profile = sketch6
pocket3.setExpression("Length", "Params.pocket3_length")

doc.recompute()
